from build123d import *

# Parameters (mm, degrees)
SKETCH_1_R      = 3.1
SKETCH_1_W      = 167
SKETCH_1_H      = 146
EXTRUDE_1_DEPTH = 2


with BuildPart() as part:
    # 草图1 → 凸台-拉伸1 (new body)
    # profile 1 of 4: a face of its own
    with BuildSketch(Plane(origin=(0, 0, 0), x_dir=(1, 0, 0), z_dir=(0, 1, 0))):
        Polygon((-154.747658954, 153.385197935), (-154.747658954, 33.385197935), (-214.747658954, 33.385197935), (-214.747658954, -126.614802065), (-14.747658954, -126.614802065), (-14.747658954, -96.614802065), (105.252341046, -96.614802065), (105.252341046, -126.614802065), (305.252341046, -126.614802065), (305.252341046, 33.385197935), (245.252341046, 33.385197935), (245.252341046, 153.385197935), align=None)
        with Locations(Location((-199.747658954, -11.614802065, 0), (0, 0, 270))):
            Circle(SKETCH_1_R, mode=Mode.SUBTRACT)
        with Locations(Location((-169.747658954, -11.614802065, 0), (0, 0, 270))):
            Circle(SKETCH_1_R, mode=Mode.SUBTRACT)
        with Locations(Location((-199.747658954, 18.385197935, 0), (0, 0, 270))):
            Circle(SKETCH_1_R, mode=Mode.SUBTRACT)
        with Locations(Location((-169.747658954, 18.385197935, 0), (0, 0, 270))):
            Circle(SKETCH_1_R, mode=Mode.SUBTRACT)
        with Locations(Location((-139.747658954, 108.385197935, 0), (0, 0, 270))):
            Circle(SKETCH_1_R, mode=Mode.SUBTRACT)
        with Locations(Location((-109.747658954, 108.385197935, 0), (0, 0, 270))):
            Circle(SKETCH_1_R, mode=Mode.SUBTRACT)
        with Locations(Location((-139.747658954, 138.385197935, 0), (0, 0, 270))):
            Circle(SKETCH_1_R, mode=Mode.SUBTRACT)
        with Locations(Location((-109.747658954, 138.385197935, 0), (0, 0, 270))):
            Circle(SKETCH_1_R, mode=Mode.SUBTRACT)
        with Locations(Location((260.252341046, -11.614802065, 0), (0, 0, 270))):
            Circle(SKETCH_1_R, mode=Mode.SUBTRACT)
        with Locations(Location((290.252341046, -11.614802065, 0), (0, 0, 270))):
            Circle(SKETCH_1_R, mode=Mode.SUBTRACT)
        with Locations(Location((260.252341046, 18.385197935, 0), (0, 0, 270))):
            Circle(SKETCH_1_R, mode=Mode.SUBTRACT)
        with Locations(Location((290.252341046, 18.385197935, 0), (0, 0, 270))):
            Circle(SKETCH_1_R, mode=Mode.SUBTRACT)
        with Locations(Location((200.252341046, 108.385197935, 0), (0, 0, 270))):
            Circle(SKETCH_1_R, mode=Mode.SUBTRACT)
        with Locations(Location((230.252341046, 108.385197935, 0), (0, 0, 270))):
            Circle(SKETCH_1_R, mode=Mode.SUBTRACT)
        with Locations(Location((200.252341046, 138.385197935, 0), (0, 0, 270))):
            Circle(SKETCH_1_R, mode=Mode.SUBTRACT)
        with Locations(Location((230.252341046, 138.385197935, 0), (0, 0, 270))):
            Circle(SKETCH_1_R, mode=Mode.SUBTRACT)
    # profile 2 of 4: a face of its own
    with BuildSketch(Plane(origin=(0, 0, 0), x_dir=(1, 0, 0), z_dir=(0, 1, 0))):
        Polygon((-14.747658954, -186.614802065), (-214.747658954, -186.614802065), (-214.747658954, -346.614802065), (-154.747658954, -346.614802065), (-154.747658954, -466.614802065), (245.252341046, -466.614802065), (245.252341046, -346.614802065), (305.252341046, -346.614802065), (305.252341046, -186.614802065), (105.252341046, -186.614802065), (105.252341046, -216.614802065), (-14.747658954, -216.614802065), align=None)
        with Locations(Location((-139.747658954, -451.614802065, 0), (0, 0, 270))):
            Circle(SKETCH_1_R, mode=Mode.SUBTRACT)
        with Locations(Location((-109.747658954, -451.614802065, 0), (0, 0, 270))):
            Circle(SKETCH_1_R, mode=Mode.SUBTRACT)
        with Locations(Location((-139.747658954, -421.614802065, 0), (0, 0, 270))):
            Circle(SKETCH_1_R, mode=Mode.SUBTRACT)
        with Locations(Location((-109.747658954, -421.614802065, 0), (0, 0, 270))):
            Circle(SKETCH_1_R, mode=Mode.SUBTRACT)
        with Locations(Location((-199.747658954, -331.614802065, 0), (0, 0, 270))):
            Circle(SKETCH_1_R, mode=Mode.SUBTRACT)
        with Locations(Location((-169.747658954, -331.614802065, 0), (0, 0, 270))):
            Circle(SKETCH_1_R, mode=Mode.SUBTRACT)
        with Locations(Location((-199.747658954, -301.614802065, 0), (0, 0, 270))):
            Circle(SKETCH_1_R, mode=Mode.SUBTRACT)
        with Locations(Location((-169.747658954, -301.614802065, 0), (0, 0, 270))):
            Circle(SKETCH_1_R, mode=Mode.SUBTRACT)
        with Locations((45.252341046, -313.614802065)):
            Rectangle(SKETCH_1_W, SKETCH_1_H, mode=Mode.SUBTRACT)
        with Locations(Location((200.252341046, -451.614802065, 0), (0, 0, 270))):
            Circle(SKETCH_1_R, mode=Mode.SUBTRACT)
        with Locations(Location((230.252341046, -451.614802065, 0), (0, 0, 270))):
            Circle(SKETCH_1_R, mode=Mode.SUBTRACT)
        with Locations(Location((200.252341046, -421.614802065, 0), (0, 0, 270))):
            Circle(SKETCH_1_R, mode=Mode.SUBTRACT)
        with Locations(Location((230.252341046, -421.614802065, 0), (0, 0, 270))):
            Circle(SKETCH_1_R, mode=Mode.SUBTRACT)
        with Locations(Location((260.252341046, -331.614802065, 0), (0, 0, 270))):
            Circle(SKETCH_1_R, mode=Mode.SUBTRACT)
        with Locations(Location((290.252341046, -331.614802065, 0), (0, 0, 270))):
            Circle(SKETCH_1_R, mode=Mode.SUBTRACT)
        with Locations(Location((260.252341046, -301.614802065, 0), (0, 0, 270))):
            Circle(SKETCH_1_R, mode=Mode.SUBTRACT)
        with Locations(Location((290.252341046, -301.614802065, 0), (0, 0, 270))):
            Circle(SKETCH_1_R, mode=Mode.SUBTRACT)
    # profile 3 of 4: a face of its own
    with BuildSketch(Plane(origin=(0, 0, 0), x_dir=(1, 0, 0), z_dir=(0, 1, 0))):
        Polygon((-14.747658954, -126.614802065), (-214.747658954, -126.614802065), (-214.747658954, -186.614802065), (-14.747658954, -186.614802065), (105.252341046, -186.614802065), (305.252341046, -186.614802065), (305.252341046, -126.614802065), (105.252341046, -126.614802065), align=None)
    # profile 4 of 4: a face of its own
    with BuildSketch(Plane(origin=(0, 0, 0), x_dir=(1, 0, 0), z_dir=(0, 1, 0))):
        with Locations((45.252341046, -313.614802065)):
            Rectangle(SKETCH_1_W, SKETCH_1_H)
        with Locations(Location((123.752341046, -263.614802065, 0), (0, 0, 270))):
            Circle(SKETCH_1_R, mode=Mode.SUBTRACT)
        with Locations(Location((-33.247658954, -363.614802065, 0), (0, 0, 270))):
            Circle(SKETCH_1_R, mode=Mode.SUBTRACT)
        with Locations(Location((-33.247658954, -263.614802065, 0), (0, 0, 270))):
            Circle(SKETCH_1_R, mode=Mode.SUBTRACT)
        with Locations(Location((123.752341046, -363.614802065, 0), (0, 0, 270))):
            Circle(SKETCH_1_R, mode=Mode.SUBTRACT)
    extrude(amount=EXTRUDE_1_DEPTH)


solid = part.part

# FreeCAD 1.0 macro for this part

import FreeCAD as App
import Part
import Sketcher

doc = App.newDocument("Part")
body = doc.addObject("PartDesign::Body", "Body")

# Sketch on XZ plane
sketch1 = body.newObject("Sketcher::SketchObject", "Sketch")
sketch1.AttachmentSupport = (doc.getObject("XZ_Plane"), [""])
sketch1.MapMode = "FlatFace"
sketch1.addGeometry(Part.LineSegment(App.Vector(-154.747659, -153.385198, 0), App.Vector(-154.747659, -33.385198, 0)), False)
sketch1.addGeometry(Part.LineSegment(App.Vector(-154.747659, -33.385198, 0), App.Vector(-214.747659, -33.385198, 0)), False)
sketch1.addGeometry(Part.LineSegment(App.Vector(-214.747659, -33.385198, 0), App.Vector(-214.747659, 346.614802, 0)), False)
sketch1.addGeometry(Part.LineSegment(App.Vector(-214.747659, 346.614802, 0), App.Vector(-154.747659, 346.614802, 0)), False)
sketch1.addGeometry(Part.LineSegment(App.Vector(-154.747659, 346.614802, 0), App.Vector(-154.747659, 466.614802, 0)), False)
sketch1.addGeometry(Part.LineSegment(App.Vector(-154.747659, 466.614802, 0), App.Vector(245.252341, 466.614802, 0)), False)
sketch1.addGeometry(Part.LineSegment(App.Vector(245.252341, 466.614802, 0), App.Vector(245.252341, 346.614802, 0)), False)
sketch1.addGeometry(Part.LineSegment(App.Vector(245.252341, 346.614802, 0), App.Vector(305.252341, 346.614802, 0)), False)
sketch1.addGeometry(Part.LineSegment(App.Vector(305.252341, 346.614802, 0), App.Vector(305.252341, -33.385198, 0)), False)
sketch1.addGeometry(Part.LineSegment(App.Vector(305.252341, -33.385198, 0), App.Vector(245.252341, -33.385198, 0)), False)
sketch1.addGeometry(Part.LineSegment(App.Vector(245.252341, -33.385198, 0), App.Vector(245.252341, -153.385198, 0)), False)
sketch1.addGeometry(Part.LineSegment(App.Vector(245.252341, -153.385198, 0), App.Vector(-154.747659, -153.385198, 0)), False)
sketch1.addGeometry(Part.LineSegment(App.Vector(-14.747659, 126.614802, 0), App.Vector(-14.747659, 96.614802, 0)), False)
sketch1.addGeometry(Part.LineSegment(App.Vector(-14.747659, 96.614802, 0), App.Vector(105.252341, 96.614802, 0)), False)
sketch1.addGeometry(Part.LineSegment(App.Vector(105.252341, 96.614802, 0), App.Vector(105.252341, 126.614802, 0)), False)
sketch1.addGeometry(Part.LineSegment(App.Vector(105.252341, 126.614802, 0), App.Vector(-14.747659, 126.614802, 0)), False)
sketch1.addGeometry(Part.Circle(App.Vector(-199.747659, 11.614802, 0), App.Vector(0, 0, 1), 3.1), False)
sketch1.addGeometry(Part.Circle(App.Vector(-169.747659, 11.614802, 0), App.Vector(0, 0, 1), 3.1), False)
sketch1.addGeometry(Part.Circle(App.Vector(-199.747659, -18.385198, 0), App.Vector(0, 0, 1), 3.1), False)
sketch1.addGeometry(Part.Circle(App.Vector(-169.747659, -18.385198, 0), App.Vector(0, 0, 1), 3.1), False)
sketch1.addGeometry(Part.Circle(App.Vector(260.252341, 11.614802, 0), App.Vector(0, 0, 1), 3.1), False)
sketch1.addGeometry(Part.Circle(App.Vector(290.252341, 11.614802, 0), App.Vector(0, 0, 1), 3.1), False)
sketch1.addGeometry(Part.Circle(App.Vector(260.252341, -18.385198, 0), App.Vector(0, 0, 1), 3.1), False)
sketch1.addGeometry(Part.Circle(App.Vector(290.252341, -18.385198, 0), App.Vector(0, 0, 1), 3.1), False)
sketch1.addGeometry(Part.Circle(App.Vector(-139.747659, -108.385198, 0), App.Vector(0, 0, 1), 3.1), False)
sketch1.addGeometry(Part.Circle(App.Vector(-109.747659, -108.385198, 0), App.Vector(0, 0, 1), 3.1), False)
sketch1.addGeometry(Part.Circle(App.Vector(-139.747659, -138.385198, 0), App.Vector(0, 0, 1), 3.1), False)
sketch1.addGeometry(Part.Circle(App.Vector(-109.747659, -138.385198, 0), App.Vector(0, 0, 1), 3.1), False)
sketch1.addGeometry(Part.Circle(App.Vector(200.252341, -108.385198, 0), App.Vector(0, 0, 1), 3.1), False)
sketch1.addGeometry(Part.Circle(App.Vector(230.252341, -108.385198, 0), App.Vector(0, 0, 1), 3.1), False)
sketch1.addGeometry(Part.Circle(App.Vector(200.252341, -138.385198, 0), App.Vector(0, 0, 1), 3.1), False)
sketch1.addGeometry(Part.Circle(App.Vector(230.252341, -138.385198, 0), App.Vector(0, 0, 1), 3.1), False)
sketch1.addGeometry(Part.LineSegment(App.Vector(-14.747659, 186.614802, 0), App.Vector(105.252341, 186.614802, 0)), False)
sketch1.addGeometry(Part.LineSegment(App.Vector(105.252341, 186.614802, 0), App.Vector(105.252341, 216.614802, 0)), False)
sketch1.addGeometry(Part.LineSegment(App.Vector(105.252341, 216.614802, 0), App.Vector(-14.747659, 216.614802, 0)), False)
sketch1.addGeometry(Part.LineSegment(App.Vector(-14.747659, 216.614802, 0), App.Vector(-14.747659, 186.614802, 0)), False)
sketch1.addGeometry(Part.Circle(App.Vector(290.252341, 301.614802, 0), App.Vector(0, 0, 1), 3.1), False)
sketch1.addGeometry(Part.Circle(App.Vector(260.252341, 301.614802, 0), App.Vector(0, 0, 1), 3.1), False)
sketch1.addGeometry(Part.Circle(App.Vector(-139.747659, 451.614802, 0), App.Vector(0, 0, 1), 3.1), False)
sketch1.addGeometry(Part.Circle(App.Vector(-109.747659, 451.614802, 0), App.Vector(0, 0, 1), 3.1), False)
sketch1.addGeometry(Part.Circle(App.Vector(-139.747659, 421.614802, 0), App.Vector(0, 0, 1), 3.1), False)
sketch1.addGeometry(Part.Circle(App.Vector(-109.747659, 421.614802, 0), App.Vector(0, 0, 1), 3.1), False)
sketch1.addGeometry(Part.Circle(App.Vector(200.252341, 451.614802, 0), App.Vector(0, 0, 1), 3.1), False)
sketch1.addGeometry(Part.Circle(App.Vector(230.252341, 451.614802, 0), App.Vector(0, 0, 1), 3.1), False)
sketch1.addGeometry(Part.Circle(App.Vector(200.252341, 421.614802, 0), App.Vector(0, 0, 1), 3.1), False)
sketch1.addGeometry(Part.Circle(App.Vector(230.252341, 421.614802, 0), App.Vector(0, 0, 1), 3.1), False)
sketch1.addGeometry(Part.Circle(App.Vector(-199.747659, 331.614802, 0), App.Vector(0, 0, 1), 3.1), False)
sketch1.addGeometry(Part.Circle(App.Vector(-169.747659, 331.614802, 0), App.Vector(0, 0, 1), 3.1), False)
sketch1.addGeometry(Part.Circle(App.Vector(-199.747659, 301.614802, 0), App.Vector(0, 0, 1), 3.1), False)
sketch1.addGeometry(Part.Circle(App.Vector(-169.747659, 301.614802, 0), App.Vector(0, 0, 1), 3.1), False)
sketch1.addGeometry(Part.Circle(App.Vector(260.252341, 331.614802, 0), App.Vector(0, 0, 1), 3.1), False)
sketch1.addGeometry(Part.Circle(App.Vector(290.252341, 331.614802, 0), App.Vector(0, 0, 1), 3.1), False)
sketch1.addGeometry(Part.Circle(App.Vector(-33.247659, 263.614802, 0), App.Vector(0, 0, 1), 3.1), False)
sketch1.addGeometry(Part.Circle(App.Vector(123.752341, 263.614802, 0), App.Vector(0, 0, 1), 3.1), False)
sketch1.addGeometry(Part.Circle(App.Vector(-33.247659, 363.614802, 0), App.Vector(0, 0, 1), 3.1), False)
sketch1.addGeometry(Part.Circle(App.Vector(123.752341, 363.614802, 0), App.Vector(0, 0, 1), 3.1), False)
sketch1.addConstraint(Sketcher.Constraint("Coincident", 0, 2, 1, 1))
sketch1.addConstraint(Sketcher.Constraint("Coincident", 1, 2, 2, 1))
sketch1.addConstraint(Sketcher.Constraint("Coincident", 2, 2, 3, 1))
sketch1.addConstraint(Sketcher.Constraint("Coincident", 3, 2, 4, 1))
sketch1.addConstraint(Sketcher.Constraint("Coincident", 4, 2, 5, 1))
sketch1.addConstraint(Sketcher.Constraint("Coincident", 5, 2, 6, 1))
sketch1.addConstraint(Sketcher.Constraint("Coincident", 6, 2, 7, 1))
sketch1.addConstraint(Sketcher.Constraint("Coincident", 7, 2, 8, 1))
sketch1.addConstraint(Sketcher.Constraint("Coincident", 8, 2, 9, 1))
sketch1.addConstraint(Sketcher.Constraint("Coincident", 9, 2, 10, 1))
sketch1.addConstraint(Sketcher.Constraint("Coincident", 10, 2, 11, 1))
sketch1.addConstraint(Sketcher.Constraint("Coincident", 11, 2, 0, 1))
sketch1.addConstraint(Sketcher.Constraint("Coincident", 12, 2, 13, 1))
sketch1.addConstraint(Sketcher.Constraint("Coincident", 13, 2, 14, 1))
sketch1.addConstraint(Sketcher.Constraint("Coincident", 14, 2, 15, 1))
sketch1.addConstraint(Sketcher.Constraint("Coincident", 15, 2, 12, 1))
sketch1.addConstraint(Sketcher.Constraint("Coincident", 32, 2, 33, 1))
sketch1.addConstraint(Sketcher.Constraint("Coincident", 33, 2, 34, 1))
sketch1.addConstraint(Sketcher.Constraint("Coincident", 34, 2, 35, 1))
sketch1.addConstraint(Sketcher.Constraint("Coincident", 35, 2, 32, 1))
sketch1.addConstraint(Sketcher.Constraint("Vertical", 0))
sketch1.addConstraint(Sketcher.Constraint("Horizontal", 1))
sketch1.addConstraint(Sketcher.Constraint("Vertical", 2))
sketch1.addConstraint(Sketcher.Constraint("Horizontal", 3))
sketch1.addConstraint(Sketcher.Constraint("Vertical", 4))
sketch1.addConstraint(Sketcher.Constraint("Horizontal", 5))
sketch1.addConstraint(Sketcher.Constraint("Vertical", 6))
sketch1.addConstraint(Sketcher.Constraint("Horizontal", 7))
sketch1.addConstraint(Sketcher.Constraint("Vertical", 8))
sketch1.addConstraint(Sketcher.Constraint("Horizontal", 9))
sketch1.addConstraint(Sketcher.Constraint("Vertical", 10))
sketch1.addConstraint(Sketcher.Constraint("Horizontal", 11))
sketch1.addConstraint(Sketcher.Constraint("Vertical", 12))
sketch1.addConstraint(Sketcher.Constraint("Horizontal", 13))
sketch1.addConstraint(Sketcher.Constraint("Vertical", 14))
sketch1.addConstraint(Sketcher.Constraint("Horizontal", 15))
sketch1.addConstraint(Sketcher.Constraint("Horizontal", 32))
sketch1.addConstraint(Sketcher.Constraint("Vertical", 33))
sketch1.addConstraint(Sketcher.Constraint("Horizontal", 34))
sketch1.addConstraint(Sketcher.Constraint("Vertical", 35))
sketch1.addConstraint(Sketcher.Constraint("Equal", 16, 17))
sketch1.addConstraint(Sketcher.Constraint("Equal", 17, 18))
sketch1.addConstraint(Sketcher.Constraint("Equal", 18, 19))
sketch1.addConstraint(Sketcher.Constraint("Equal", 19, 20))
sketch1.addConstraint(Sketcher.Constraint("Equal", 20, 21))
sketch1.addConstraint(Sketcher.Constraint("Equal", 21, 22))
sketch1.addConstraint(Sketcher.Constraint("Equal", 22, 23))
sketch1.addConstraint(Sketcher.Constraint("Equal", 23, 24))
sketch1.addConstraint(Sketcher.Constraint("Equal", 24, 25))
sketch1.addConstraint(Sketcher.Constraint("Equal", 25, 26))
sketch1.addConstraint(Sketcher.Constraint("Equal", 26, 27))
sketch1.addConstraint(Sketcher.Constraint("Equal", 27, 28))
sketch1.addConstraint(Sketcher.Constraint("Equal", 28, 29))
sketch1.addConstraint(Sketcher.Constraint("Equal", 29, 30))
sketch1.addConstraint(Sketcher.Constraint("Equal", 30, 31))
sketch1.addConstraint(Sketcher.Constraint("Equal", 31, 36))
sketch1.addConstraint(Sketcher.Constraint("Equal", 36, 37))
sketch1.addConstraint(Sketcher.Constraint("Equal", 37, 38))
sketch1.addConstraint(Sketcher.Constraint("Equal", 38, 39))
sketch1.addConstraint(Sketcher.Constraint("Equal", 39, 40))
sketch1.addConstraint(Sketcher.Constraint("Equal", 40, 41))
sketch1.addConstraint(Sketcher.Constraint("Equal", 41, 42))
sketch1.addConstraint(Sketcher.Constraint("Equal", 42, 43))
sketch1.addConstraint(Sketcher.Constraint("Equal", 43, 44))
sketch1.addConstraint(Sketcher.Constraint("Equal", 44, 45))
sketch1.addConstraint(Sketcher.Constraint("Equal", 45, 46))
sketch1.addConstraint(Sketcher.Constraint("Equal", 46, 47))
sketch1.addConstraint(Sketcher.Constraint("Equal", 47, 48))
sketch1.addConstraint(Sketcher.Constraint("Equal", 48, 49))
sketch1.addConstraint(Sketcher.Constraint("Equal", 49, 50))
sketch1.addConstraint(Sketcher.Constraint("Equal", 50, 51))
sketch1.addConstraint(Sketcher.Constraint("Equal", 51, 52))
sketch1.addConstraint(Sketcher.Constraint("Equal", 52, 53))
sketch1.addConstraint(Sketcher.Constraint("Equal", 53, 54))
sketch1.addConstraint(Sketcher.Constraint("Equal", 54, 55))
sketch1.addConstraint(Sketcher.Constraint("Horizontal", 16, 3, 17, 3))
sketch1.addConstraint(Sketcher.Constraint("Horizontal", 18, 3, 19, 3))
sketch1.addConstraint(Sketcher.Constraint("Horizontal", 17, 3, 20, 3))
sketch1.addConstraint(Sketcher.Constraint("Horizontal", 20, 3, 21, 3))
sketch1.addConstraint(Sketcher.Constraint("Horizontal", 19, 3, 22, 3))
sketch1.addConstraint(Sketcher.Constraint("Horizontal", 22, 3, 23, 3))
sketch1.addConstraint(Sketcher.Constraint("Horizontal", 24, 3, 25, 3))
sketch1.addConstraint(Sketcher.Constraint("Horizontal", 26, 3, 27, 3))
sketch1.addConstraint(Sketcher.Constraint("Horizontal", 25, 3, 28, 3))
sketch1.addConstraint(Sketcher.Constraint("Horizontal", 28, 3, 29, 3))
sketch1.addConstraint(Sketcher.Constraint("Horizontal", 27, 3, 30, 3))
sketch1.addConstraint(Sketcher.Constraint("Horizontal", 30, 3, 31, 3))
sketch1.addConstraint(Sketcher.Constraint("Horizontal", 36, 3, 37, 3))
sketch1.addConstraint(Sketcher.Constraint("Horizontal", 38, 3, 39, 3))
sketch1.addConstraint(Sketcher.Constraint("Horizontal", 40, 3, 41, 3))
sketch1.addConstraint(Sketcher.Constraint("Horizontal", 39, 3, 42, 3))
sketch1.addConstraint(Sketcher.Constraint("Horizontal", 42, 3, 43, 3))
sketch1.addConstraint(Sketcher.Constraint("Horizontal", 41, 3, 44, 3))
sketch1.addConstraint(Sketcher.Constraint("Horizontal", 44, 3, 45, 3))
sketch1.addConstraint(Sketcher.Constraint("Horizontal", 46, 3, 47, 3))
sketch1.addConstraint(Sketcher.Constraint("Horizontal", 37, 3, 48, 3))
sketch1.addConstraint(Sketcher.Constraint("Horizontal", 48, 3, 49, 3))
sketch1.addConstraint(Sketcher.Constraint("Horizontal", 47, 3, 50, 3))
sketch1.addConstraint(Sketcher.Constraint("Horizontal", 50, 3, 51, 3))
sketch1.addConstraint(Sketcher.Constraint("Horizontal", 52, 3, 53, 3))
sketch1.addConstraint(Sketcher.Constraint("Horizontal", 54, 3, 55, 3))
sketch1.addConstraint(Sketcher.Constraint("Horizontal", 3, 2, 6, 2))
sketch1.addConstraint(Sketcher.Constraint("Horizontal", 1, 2, 8, 2))
sketch1.addConstraint(Sketcher.Constraint("Vertical", 16, 3, 18, 3))
sketch1.addConstraint(Sketcher.Constraint("Vertical", 17, 3, 19, 3))
sketch1.addConstraint(Sketcher.Constraint("Vertical", 20, 3, 22, 3))
sketch1.addConstraint(Sketcher.Constraint("Vertical", 21, 3, 23, 3))
sketch1.addConstraint(Sketcher.Constraint("Vertical", 24, 3, 26, 3))
sketch1.addConstraint(Sketcher.Constraint("Vertical", 25, 3, 27, 3))
sketch1.addConstraint(Sketcher.Constraint("Vertical", 28, 3, 30, 3))
sketch1.addConstraint(Sketcher.Constraint("Vertical", 29, 3, 31, 3))
sketch1.addConstraint(Sketcher.Constraint("Vertical", 23, 3, 36, 3))
sketch1.addConstraint(Sketcher.Constraint("Vertical", 22, 3, 37, 3))
sketch1.addConstraint(Sketcher.Constraint("Vertical", 26, 3, 38, 3))
sketch1.addConstraint(Sketcher.Constraint("Vertical", 27, 3, 39, 3))
sketch1.addConstraint(Sketcher.Constraint("Vertical", 38, 3, 40, 3))
sketch1.addConstraint(Sketcher.Constraint("Vertical", 39, 3, 41, 3))
sketch1.addConstraint(Sketcher.Constraint("Vertical", 30, 3, 42, 3))
sketch1.addConstraint(Sketcher.Constraint("Vertical", 31, 3, 43, 3))
sketch1.addConstraint(Sketcher.Constraint("Vertical", 42, 3, 44, 3))
sketch1.addConstraint(Sketcher.Constraint("Vertical", 43, 3, 45, 3))
sketch1.addConstraint(Sketcher.Constraint("Vertical", 18, 3, 46, 3))
sketch1.addConstraint(Sketcher.Constraint("Vertical", 19, 3, 47, 3))
sketch1.addConstraint(Sketcher.Constraint("Vertical", 46, 3, 48, 3))
sketch1.addConstraint(Sketcher.Constraint("Vertical", 47, 3, 49, 3))
sketch1.addConstraint(Sketcher.Constraint("Vertical", 37, 3, 50, 3))
sketch1.addConstraint(Sketcher.Constraint("Vertical", 36, 3, 51, 3))
sketch1.addConstraint(Sketcher.Constraint("Vertical", 52, 3, 54, 3))
sketch1.addConstraint(Sketcher.Constraint("Vertical", 53, 3, 55, 3))
sketch1.addConstraint(Sketcher.Constraint("Vertical", 0, 2, 3, 2))
sketch1.addConstraint(Sketcher.Constraint("Vertical", 6, 2, 9, 2))
sketch1.addConstraint(Sketcher.Constraint("Vertical", 14, 2, 32, 2))
sketch1.addConstraint(Sketcher.Constraint("Vertical", 15, 2, 34, 2))
sketch1.addConstraint(Sketcher.Constraint("Equal", 3, 7))
sketch1.addConstraint(Sketcher.Constraint("Equal", 34, 0))
sketch1.addConstraint(Sketcher.Constraint("Equal", 0, 4))
sketch1.addConstraint(Sketcher.Constraint("Equal", 14, 33))
sketch1.addConstraint(Sketcher.Constraint("Diameter", 16, 6.2))
sketch1.addConstraint(Sketcher.Constraint("DistanceX", 1, 2, 1, 1, 60.0))
sketch1.addConstraint(Sketcher.Constraint("DistanceX", 5, 1, 5, 2, 400.0))
sketch1.addConstraint(Sketcher.Constraint("DistanceX", 13, 1, 13, 2, 120.0))
sketch1.addConstraint(Sketcher.Constraint("DistanceY", 2, 1, 2, 2, 380.0))
sketch1.addConstraint(Sketcher.Constraint("DistanceY", 12, 2, 12, 1, 30.0))
sketch1.addConstraint(Sketcher.Constraint("DistanceX", 16, 3, 17, 3, 30.0))
sketch1.addConstraint(Sketcher.Constraint("DistanceY", 18, 3, 16, 3, 30.0))
sketch1.addConstraint(Sketcher.Constraint("DistanceX", 17, 3, 20, 3, 430.0))
sketch1.addConstraint(Sketcher.Constraint("DistanceX", 20, 3, 21, 3, 30.0))
sketch1.addConstraint(Sketcher.Constraint("DistanceX", 19, 3, 24, 3, 30.0))
sketch1.addConstraint(Sketcher.Constraint("DistanceY", 24, 3, 19, 3, 90.0))
sketch1.addConstraint(Sketcher.Constraint("DistanceX", 24, 3, 25, 3, 30.0))
sketch1.addConstraint(Sketcher.Constraint("DistanceY", 26, 3, 24, 3, 30.0))
sketch1.addConstraint(Sketcher.Constraint("DistanceX", 28, 3, 22, 3, 60.0))
sketch1.addConstraint(Sketcher.Constraint("DistanceX", 28, 3, 29, 3, 30.0))
sketch1.addConstraint(Sketcher.Constraint("DistanceY", 21, 3, 36, 3, 290.0))
sketch1.addConstraint(Sketcher.Constraint("DistanceY", 37, 3, 38, 3, 150.0))
sketch1.addConstraint(Sketcher.Constraint("DistanceY", 40, 3, 38, 3, 30.0))
sketch1.addConstraint(Sketcher.Constraint("DistanceY", 46, 3, 40, 3, 90.0))
sketch1.addConstraint(Sketcher.Constraint("DistanceY", 52, 3, 49, 3, 38.0))
sketch1.addConstraint(Sketcher.Constraint("DistanceX", 52, 3, 53, 3, 157.0))
sketch1.addConstraint(Sketcher.Constraint("DistanceY", 54, 3, 41, 3, 58.0))
sketch1.addConstraint(Sketcher.Constraint("DistanceX", 19, 3, 0, 2, 15.0))
sketch1.addConstraint(Sketcher.Constraint("DistanceY", 0, 2, 19, 3, 15.0))
sketch1.addConstraint(Sketcher.Constraint("DistanceY", 12, 2, 52, 3, 167.0))
sketch1.addConstraint(Sketcher.Constraint("DistanceX", 17, 3, 12, 2, 155.0))
sketch1.addConstraint(Sketcher.Constraint("DistanceY", 14, 2, 32, 2, 60.0))
sketch1.addConstraint(Sketcher.Constraint("DistanceX", 49, 3, 52, 3, 136.5))
sketch1.addConstraint(Sketcher.Constraint("DistanceX", 16, 3, -1, 1, 199.747659))
sketch1.addConstraint(Sketcher.Constraint("DistanceY", -1, 1, 16, 3, 11.614802))
pad1 = body.newObject("PartDesign::Pad", "Pad")
pad1.Profile = sketch1
pad1.Length = 2
pad1.Reversed = True

doc.recompute()
